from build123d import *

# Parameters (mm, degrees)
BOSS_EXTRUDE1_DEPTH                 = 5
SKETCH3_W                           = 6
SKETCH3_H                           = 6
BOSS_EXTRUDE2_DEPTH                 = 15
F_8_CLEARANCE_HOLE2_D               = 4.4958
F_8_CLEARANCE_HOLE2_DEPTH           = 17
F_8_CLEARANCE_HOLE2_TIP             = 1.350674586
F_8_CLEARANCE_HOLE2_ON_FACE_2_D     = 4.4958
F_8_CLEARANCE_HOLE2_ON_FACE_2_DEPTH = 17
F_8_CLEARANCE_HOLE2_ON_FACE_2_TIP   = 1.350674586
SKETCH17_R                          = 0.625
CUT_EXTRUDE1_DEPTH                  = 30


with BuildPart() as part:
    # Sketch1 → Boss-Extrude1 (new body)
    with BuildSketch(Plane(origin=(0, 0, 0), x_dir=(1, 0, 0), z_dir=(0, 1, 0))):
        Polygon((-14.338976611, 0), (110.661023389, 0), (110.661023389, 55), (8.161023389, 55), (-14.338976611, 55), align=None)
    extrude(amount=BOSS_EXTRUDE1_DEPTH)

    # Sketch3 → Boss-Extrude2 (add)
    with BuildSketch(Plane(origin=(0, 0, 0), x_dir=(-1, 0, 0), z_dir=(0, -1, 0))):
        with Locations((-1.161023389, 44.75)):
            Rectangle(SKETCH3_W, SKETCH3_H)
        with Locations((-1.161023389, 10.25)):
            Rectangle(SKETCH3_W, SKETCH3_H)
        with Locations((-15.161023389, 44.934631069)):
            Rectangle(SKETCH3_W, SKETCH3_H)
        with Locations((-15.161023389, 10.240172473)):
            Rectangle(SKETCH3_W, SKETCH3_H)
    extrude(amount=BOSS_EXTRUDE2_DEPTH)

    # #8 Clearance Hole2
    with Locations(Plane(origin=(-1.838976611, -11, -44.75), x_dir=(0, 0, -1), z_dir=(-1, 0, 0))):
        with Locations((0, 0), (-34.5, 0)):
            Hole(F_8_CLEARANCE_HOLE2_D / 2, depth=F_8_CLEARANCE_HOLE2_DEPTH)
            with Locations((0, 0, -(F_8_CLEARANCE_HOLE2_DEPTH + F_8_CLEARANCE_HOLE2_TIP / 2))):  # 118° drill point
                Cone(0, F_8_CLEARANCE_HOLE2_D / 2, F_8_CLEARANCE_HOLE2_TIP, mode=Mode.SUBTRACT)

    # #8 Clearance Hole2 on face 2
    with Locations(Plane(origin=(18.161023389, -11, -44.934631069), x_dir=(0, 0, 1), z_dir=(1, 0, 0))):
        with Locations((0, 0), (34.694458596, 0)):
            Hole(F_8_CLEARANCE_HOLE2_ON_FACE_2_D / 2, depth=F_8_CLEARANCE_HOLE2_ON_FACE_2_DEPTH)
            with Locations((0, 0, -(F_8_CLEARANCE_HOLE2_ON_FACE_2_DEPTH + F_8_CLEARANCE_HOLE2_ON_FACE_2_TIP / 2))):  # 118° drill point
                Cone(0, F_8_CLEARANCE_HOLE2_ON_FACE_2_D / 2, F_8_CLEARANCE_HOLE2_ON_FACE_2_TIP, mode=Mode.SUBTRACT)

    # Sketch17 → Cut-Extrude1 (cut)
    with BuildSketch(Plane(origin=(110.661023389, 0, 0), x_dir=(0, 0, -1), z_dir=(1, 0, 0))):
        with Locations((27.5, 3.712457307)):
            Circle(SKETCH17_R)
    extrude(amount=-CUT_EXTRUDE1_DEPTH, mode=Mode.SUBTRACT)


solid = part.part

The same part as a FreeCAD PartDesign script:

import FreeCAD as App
import Part
import Sketcher


def add_polygon(sketch, points):
    """Adds a closed chain of lines whose ends are joined by coincident constraints."""
    first, n = sketch.GeometryCount, len(points)
    for a, b in zip(points, points[1:] + points[:1]):
        sketch.addGeometry(Part.LineSegment(App.Vector(*a, 0), App.Vector(*b, 0)), False)
    for i in range(n):
        sketch.addConstraint(Sketcher.Constraint("Coincident", first + i, 2, first + (i + 1) % n, 1))

doc = App.newDocument("Part")
body = doc.addObject("PartDesign::Body", "Body")

sketch1 = doc.addObject("Sketcher::SketchObject", "Sketch")
body.addObject(sketch1)
sketch1.AttachmentSupport = (doc.XZ_Plane, [""])
sketch1.MapMode = "FlatFace"
add_polygon(sketch1, [(-14, 0), (111, 0), (111, -55), (-14, -55)])
sketch1.addConstraint([
    Sketcher.Constraint("Horizontal", 0),
    Sketcher.Constraint("Vertical", 1),
    Sketcher.Constraint("Horizontal", 2),
    Sketcher.Constraint("Vertical", 3),
    Sketcher.Constraint("PointOnObject", 0, 2, -1),
    Sketcher.Constraint("DistanceX", 0, 1, 0, 2, 125.0),
    Sketcher.Constraint("DistanceY", 1, 2, 1, 1, 55.0),
    Sketcher.Constraint("DistanceX", -1, 1, 0, 2, 110.661023),
])
pad1 = doc.addObject("PartDesign::Pad", "Pad")
body.addObject(pad1)
pad1.Profile = sketch1
pad1.Length = 5
pad1.Reversed = True

sketch2 = doc.addObject("Sketcher::SketchObject", "Sketch001")
body.addObject(sketch2)
sketch2.AttachmentSupport = (doc.XZ_Plane, [""])
sketch2.MapMode = "FlatFace"
add_polygon(sketch2, [(4, -48), (4, -42), (-2, -42), (-2, -48)])
add_polygon(sketch2, [(4, -13), (4, -7), (-2, -7), (-2, -13)])
add_polygon(sketch2, [(18, -48), (18, -42), (12, -42), (12, -48)])
add_polygon(sketch2, [(18, -13), (18, -7), (12, -7), (12, -13)])
sketch2.addConstraint([
    Sketcher.Constraint("Vertical", 0),
    Sketcher.Constraint("Horizontal", 1),
    Sketcher.Constraint("Vertical", 2),
    Sketcher.Constraint("Horizontal", 3),
    Sketcher.Constraint("Vertical", 4),
    Sketcher.Constraint("Horizontal", 5),
    Sketcher.Constraint("Vertical", 6),
    Sketcher.Constraint("Horizontal", 7),
    Sketcher.Constraint("Vertical", 8),
    Sketcher.Constraint("Horizontal", 9),
    Sketcher.Constraint("Vertical", 10),
    Sketcher.Constraint("Horizontal", 11),
    Sketcher.Constraint("Vertical", 12),
    Sketcher.Constraint("Horizontal", 13),
    Sketcher.Constraint("Vertical", 14),
    Sketcher.Constraint("Horizontal", 15),
    Sketcher.Constraint("Vertical", 3, 2, 4, 2),
    Sketcher.Constraint("Vertical", 2, 2, 5, 2),
    Sketcher.Constraint("Vertical", 11, 2, 12, 2),
    Sketcher.Constraint("Vertical", 10, 2, 13, 2),
    Sketcher.Constraint("Equal", 7, 9),
    Sketcher.Constraint("Equal", 15, 0),
    Sketcher.Constraint("Equal", 2, 4),
    Sketcher.Constraint("Equal", 6, 8),
    Sketcher.Constraint("Equal", 10, 12),
    Sketcher.Constraint("DistanceX", 1, 2, 1, 1, 6.0),
    Sketcher.Constraint("DistanceX", 0, 2, 8, 2, 14.0),
    Sketcher.Constraint("DistanceY", 0, 2, 4, 2, 34.5),
    Sketcher.Constraint("DistanceY", 0, 2, -1, 1, 41.75),
    Sketcher.Constraint("DistanceY", 8, 2, -1, 1, 41.934631),
    Sketcher.Constraint("DistanceY", 8, 2, 12, 2, 34.694459),
    Sketcher.Constraint("DistanceX", -1, 1, 0, 2, 4.161023),
])
pad2 = doc.addObject("PartDesign::Pad", "Pad001")
body.addObject(pad2)
pad2.Profile = sketch2
pad2.Length = 15

sketch3 = doc.addObject("Sketcher::SketchObject", "Sketch002")
body.addObject(sketch3)
sketch3.AttachmentSupport = (doc.YZ_Plane, [""])
sketch3.MapMode = "FlatFace"
sketch3.AttachmentOffset = App.Placement(App.Vector(0, 0, -1.838977), App.Rotation())
sketch3.addGeometry([
    Part.Circle(App.Vector(-11, -44.8, 0), App.Vector(0, 0, 1), 2.2),
    Part.Circle(App.Vector(-11, -10.2, 0), App.Vector(0, 0, 1), 2.2),
], False)
sketch3.addConstraint([
    Sketcher.Constraint("Equal", 0, 1),
    Sketcher.Constraint("Vertical", 0, 3, 1, 3),
    Sketcher.Constraint("DistanceX", 0, 3, -1, 1, 11.0),
    Sketcher.Constraint("Diameter", 0, 4.4958),
    Sketcher.Constraint("DistanceY", 0, 3, 1, 3, 34.5),
    Sketcher.Constraint("DistanceY", 0, 3, -1, 1, 44.75),
])
doc.recompute()
hole = doc.addObject("PartDesign::Hole", "Hole")
body.addObject(hole)
hole.Profile = sketch3
hole.ThreadType = "None"
hole.Diameter = 4.4958
hole.DepthType = "Dimension"
hole.Depth = 17
hole.DrillPoint = "Angled"
hole.DrillPointAngle = 118
hole.Reversed = True

sketch4 = doc.addObject("Sketcher::SketchObject", "Sketch003")
body.addObject(sketch4)
sketch4.AttachmentSupport = (doc.YZ_Plane, [""])
sketch4.MapMode = "FlatFace"
sketch4.AttachmentOffset = App.Placement(App.Vector(0, 0, 18.161023), App.Rotation())
sketch4.addGeometry([
    Part.Circle(App.Vector(-11, -44.9, 0), App.Vector(0, 0, 1), 2.2),
    Part.Circle(App.Vector(-11, -10.2, 0), App.Vector(0, 0, 1), 2.2),
], False)
sketch4.addConstraint([
    Sketcher.Constraint("Equal", 0, 1),
    Sketcher.Constraint("Vertical", 0, 3, 1, 3),
    Sketcher.Constraint("DistanceX", 0, 3, -1, 1, 11.0),
    Sketcher.Constraint("Diameter", 0, 4.4958),
    Sketcher.Constraint("DistanceY", 0, 3, -1, 1, 44.934631),
    Sketcher.Constraint("DistanceY", 0, 3, 1, 3, 34.694459),
])
doc.recompute()
hole2 = doc.addObject("PartDesign::Hole", "Hole001")
body.addObject(hole2)
hole2.Profile = sketch4
hole2.ThreadType = "None"
hole2.Diameter = 4.4958
hole2.DepthType = "Dimension"
hole2.Depth = 17
hole2.DrillPoint = "Angled"
hole2.DrillPointAngle = 118

sketch5 = doc.addObject("Sketcher::SketchObject", "Sketch004")
body.addObject(sketch5)
sketch5.AttachmentSupport = (doc.YZ_Plane, [""])
sketch5.MapMode = "FlatFace"
sketch5.AttachmentOffset = App.Placement(App.Vector(0, 0, 110.661023), App.Rotation())
sketch5.addGeometry(Part.Circle(App.Vector(3.7, -27.5, 0), App.Vector(0, 0, 1), 0.6), False)
sketch5.addConstraint([
    Sketcher.Constraint("Diameter", 0, 1.25),
    Sketcher.Constraint("DistanceY", 0, 3, -1, 1, 27.5),
    Sketcher.Constraint("DistanceX", -1, 1, 0, 3, 3.712457),
])
pocket1 = doc.addObject("PartDesign::Pocket", "Pocket")
body.addObject(pocket1)
pocket1.Profile = sketch5
pocket1.Length = 30

doc.recompute()
